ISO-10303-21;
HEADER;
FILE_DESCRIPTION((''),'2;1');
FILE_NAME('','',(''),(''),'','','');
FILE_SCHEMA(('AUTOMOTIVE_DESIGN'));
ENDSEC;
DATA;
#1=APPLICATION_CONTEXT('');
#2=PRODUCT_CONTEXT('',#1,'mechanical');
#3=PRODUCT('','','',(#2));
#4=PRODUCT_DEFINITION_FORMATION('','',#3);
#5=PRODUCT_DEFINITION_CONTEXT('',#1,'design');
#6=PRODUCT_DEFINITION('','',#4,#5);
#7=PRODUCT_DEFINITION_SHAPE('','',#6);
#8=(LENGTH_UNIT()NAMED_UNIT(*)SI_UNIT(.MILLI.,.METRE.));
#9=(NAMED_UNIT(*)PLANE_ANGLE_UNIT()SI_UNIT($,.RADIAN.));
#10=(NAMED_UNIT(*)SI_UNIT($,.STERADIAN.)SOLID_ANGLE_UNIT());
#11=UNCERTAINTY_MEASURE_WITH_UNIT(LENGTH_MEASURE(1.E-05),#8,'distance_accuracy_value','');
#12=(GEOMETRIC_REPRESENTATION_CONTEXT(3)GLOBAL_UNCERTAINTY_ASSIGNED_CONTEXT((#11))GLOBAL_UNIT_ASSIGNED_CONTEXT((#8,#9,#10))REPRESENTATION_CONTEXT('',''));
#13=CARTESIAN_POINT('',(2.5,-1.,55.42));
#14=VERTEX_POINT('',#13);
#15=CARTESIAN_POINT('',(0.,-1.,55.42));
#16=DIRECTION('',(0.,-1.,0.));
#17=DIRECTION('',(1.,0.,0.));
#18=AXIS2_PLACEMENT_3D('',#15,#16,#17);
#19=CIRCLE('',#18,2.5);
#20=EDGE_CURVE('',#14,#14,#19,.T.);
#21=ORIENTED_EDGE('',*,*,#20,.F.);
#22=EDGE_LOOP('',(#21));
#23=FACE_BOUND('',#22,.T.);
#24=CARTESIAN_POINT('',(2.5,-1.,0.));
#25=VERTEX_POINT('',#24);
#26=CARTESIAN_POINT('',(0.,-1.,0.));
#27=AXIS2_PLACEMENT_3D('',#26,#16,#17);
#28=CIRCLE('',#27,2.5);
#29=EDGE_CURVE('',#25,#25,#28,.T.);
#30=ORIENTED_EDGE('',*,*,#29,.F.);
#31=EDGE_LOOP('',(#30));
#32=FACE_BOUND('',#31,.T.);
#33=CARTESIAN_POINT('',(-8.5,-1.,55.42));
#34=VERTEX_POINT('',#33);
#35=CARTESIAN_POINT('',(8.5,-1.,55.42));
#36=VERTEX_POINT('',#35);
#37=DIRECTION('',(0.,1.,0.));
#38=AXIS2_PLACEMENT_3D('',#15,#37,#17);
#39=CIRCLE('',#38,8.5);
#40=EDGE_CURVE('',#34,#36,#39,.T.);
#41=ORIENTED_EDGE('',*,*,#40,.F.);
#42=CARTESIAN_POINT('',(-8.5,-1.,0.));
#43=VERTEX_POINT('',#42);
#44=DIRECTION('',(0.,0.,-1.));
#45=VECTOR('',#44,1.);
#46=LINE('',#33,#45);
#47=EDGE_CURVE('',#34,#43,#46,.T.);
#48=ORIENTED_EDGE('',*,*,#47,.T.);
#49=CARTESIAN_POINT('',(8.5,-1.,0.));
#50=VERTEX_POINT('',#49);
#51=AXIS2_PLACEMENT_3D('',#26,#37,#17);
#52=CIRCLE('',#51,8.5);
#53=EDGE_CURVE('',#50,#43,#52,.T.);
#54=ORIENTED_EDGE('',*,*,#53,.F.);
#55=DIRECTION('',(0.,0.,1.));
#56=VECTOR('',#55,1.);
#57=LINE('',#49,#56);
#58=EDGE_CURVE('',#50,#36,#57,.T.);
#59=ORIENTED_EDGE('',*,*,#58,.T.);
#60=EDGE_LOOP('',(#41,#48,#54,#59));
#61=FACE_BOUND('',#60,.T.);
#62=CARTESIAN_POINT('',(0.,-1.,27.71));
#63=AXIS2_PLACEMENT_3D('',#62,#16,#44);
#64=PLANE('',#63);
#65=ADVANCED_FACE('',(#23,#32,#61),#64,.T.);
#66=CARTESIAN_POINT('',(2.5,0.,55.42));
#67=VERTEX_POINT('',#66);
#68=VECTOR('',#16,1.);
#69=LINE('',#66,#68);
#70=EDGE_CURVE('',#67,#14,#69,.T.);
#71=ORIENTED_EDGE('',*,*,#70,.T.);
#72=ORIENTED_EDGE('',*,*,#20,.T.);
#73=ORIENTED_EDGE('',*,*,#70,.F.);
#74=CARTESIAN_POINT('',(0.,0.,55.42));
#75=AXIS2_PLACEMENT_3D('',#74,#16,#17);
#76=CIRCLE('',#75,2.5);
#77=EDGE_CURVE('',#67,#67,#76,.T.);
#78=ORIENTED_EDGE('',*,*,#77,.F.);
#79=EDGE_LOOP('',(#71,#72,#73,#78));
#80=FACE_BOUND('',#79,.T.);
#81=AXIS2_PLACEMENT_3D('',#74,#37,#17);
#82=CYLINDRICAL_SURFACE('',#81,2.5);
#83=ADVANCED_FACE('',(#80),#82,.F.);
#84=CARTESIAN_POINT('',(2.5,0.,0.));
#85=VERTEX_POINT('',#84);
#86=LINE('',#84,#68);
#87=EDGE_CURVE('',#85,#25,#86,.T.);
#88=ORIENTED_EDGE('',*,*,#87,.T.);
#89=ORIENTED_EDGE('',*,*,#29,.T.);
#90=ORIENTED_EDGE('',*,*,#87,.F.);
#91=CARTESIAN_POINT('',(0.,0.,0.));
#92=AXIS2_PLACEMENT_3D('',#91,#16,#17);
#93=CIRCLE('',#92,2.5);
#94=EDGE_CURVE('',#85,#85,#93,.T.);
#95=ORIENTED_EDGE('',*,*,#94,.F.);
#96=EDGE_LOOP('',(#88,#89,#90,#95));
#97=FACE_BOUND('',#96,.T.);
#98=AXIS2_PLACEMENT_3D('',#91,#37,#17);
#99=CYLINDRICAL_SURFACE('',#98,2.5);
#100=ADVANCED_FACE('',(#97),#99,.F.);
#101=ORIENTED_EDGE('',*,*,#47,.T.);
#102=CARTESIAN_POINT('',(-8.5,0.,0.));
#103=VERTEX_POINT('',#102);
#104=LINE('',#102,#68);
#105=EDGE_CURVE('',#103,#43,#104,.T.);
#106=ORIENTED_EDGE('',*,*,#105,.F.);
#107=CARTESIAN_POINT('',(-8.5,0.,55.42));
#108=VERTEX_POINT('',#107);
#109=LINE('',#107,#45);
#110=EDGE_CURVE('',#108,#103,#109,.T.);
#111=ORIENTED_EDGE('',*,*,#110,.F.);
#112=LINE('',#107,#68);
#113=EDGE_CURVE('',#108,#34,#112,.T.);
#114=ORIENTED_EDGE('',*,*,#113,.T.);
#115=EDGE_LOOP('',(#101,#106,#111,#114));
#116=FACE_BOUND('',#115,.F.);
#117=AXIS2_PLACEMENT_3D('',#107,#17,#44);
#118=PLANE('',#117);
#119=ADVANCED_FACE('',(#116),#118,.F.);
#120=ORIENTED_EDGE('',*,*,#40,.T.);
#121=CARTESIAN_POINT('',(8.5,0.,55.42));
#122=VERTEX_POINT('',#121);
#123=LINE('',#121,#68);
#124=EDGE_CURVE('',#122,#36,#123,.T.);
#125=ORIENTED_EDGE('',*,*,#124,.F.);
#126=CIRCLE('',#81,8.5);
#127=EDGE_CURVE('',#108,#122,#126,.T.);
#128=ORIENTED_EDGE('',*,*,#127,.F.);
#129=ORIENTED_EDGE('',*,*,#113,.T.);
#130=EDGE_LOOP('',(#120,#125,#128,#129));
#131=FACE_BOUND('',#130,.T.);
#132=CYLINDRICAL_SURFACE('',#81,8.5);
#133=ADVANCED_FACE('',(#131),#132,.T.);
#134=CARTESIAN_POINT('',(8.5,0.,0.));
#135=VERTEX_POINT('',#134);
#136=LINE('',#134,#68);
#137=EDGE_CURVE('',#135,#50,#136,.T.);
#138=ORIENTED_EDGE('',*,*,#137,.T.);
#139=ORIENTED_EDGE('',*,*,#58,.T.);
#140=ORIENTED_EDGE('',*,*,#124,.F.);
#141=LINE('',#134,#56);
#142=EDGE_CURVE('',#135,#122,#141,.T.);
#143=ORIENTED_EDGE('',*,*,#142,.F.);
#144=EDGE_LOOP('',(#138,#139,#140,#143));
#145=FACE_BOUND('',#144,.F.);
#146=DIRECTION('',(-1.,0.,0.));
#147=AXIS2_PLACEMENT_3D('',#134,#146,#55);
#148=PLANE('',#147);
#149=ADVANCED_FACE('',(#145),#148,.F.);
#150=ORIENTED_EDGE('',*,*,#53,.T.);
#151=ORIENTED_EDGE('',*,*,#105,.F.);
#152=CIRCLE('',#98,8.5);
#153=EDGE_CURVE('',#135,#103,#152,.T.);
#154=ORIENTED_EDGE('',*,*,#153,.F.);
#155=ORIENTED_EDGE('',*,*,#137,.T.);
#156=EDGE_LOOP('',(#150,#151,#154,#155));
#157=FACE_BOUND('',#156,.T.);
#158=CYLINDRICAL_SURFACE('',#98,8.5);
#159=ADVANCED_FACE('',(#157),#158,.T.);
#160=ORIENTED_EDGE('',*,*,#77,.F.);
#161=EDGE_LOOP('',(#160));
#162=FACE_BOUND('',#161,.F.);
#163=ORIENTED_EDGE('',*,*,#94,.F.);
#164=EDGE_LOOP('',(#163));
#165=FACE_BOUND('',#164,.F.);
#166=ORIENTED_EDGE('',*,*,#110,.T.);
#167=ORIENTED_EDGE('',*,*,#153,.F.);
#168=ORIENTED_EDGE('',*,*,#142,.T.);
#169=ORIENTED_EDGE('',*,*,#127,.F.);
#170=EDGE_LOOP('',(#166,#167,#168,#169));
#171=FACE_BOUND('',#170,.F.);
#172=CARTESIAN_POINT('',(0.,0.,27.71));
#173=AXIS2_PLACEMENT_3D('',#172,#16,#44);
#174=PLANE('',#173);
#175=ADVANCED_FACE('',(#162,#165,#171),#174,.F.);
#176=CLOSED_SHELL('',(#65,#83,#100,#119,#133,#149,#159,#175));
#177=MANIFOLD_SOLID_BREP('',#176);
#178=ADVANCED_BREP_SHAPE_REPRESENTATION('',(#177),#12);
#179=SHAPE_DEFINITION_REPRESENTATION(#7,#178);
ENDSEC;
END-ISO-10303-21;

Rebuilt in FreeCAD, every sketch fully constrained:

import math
import FreeCAD as App
import Part
import Sketcher
from FreeCAD import Vector

doc = App.newDocument("Part")
body = doc.addObject("PartDesign::Body", "Body")

# Sketch on XZ plane
sketch1 = body.newObject("Sketcher::SketchObject", "Sketch")
sketch1.AttachmentSupport = (doc.getObject("XZ_Plane"), [""])
sketch1.MapMode = "FlatFace"
sketch1.addGeometry(Part.ArcOfCircle(Part.Circle(Vector(0, 0, 0), Vector(0, 0, 1), 8.5), math.radians(180), math.radians(360)), False)
sketch1.addGeometry(Part.LineSegment(Vector(8.5, 0, 0), Vector(8.5, 55.4, 0)), False)
sketch1.addGeometry(Part.ArcOfCircle(Part.Circle(Vector(0, 55.4, 0), Vector(0, 0, 1), 8.5), math.radians(0), math.radians(180)), False)
sketch1.addGeometry(Part.LineSegment(Vector(-8.5, 55.4, 0), Vector(-8.5, 0, 0)), False)
sketch1.addGeometry(Part.Circle(Vector(0, 0, 0), Vector(0, 0, 1), 2.5), False)
sketch1.addGeometry(Part.Circle(Vector(0, 55.4, 0), Vector(0, 0, 1), 2.5), False)
sketch1.addConstraint(Sketcher.Constraint("Tangent", 0, 2, 1, 1))
sketch1.addConstraint(Sketcher.Constraint("Tangent", 1, 2, 2, 1))
sketch1.addConstraint(Sketcher.Constraint("Tangent", 2, 2, 3, 1))
sketch1.addConstraint(Sketcher.Constraint("Tangent", 3, 2, 0, 1))
sketch1.addConstraint(Sketcher.Constraint("Vertical", 1))
sketch1.addConstraint(Sketcher.Constraint("Vertical", 3))
sketch1.addConstraint(Sketcher.Constraint("Coincident", 0, 3, -1, 1))
sketch1.addConstraint(Sketcher.Constraint("Coincident", 4, 3, -1, 1))
sketch1.addConstraint(Sketcher.Constraint("Coincident", 5, 3, 2, 3))
sketch1.addConstraint(Sketcher.Constraint("Equal", 4, 5))
sketch1.addConstraint(Sketcher.Constraint("Diameter", 4, 5.0))
sketch1.addConstraint(Sketcher.Constraint("Radius", 0, 8.5))
sketch1.addConstraint(Sketcher.Constraint("DistanceY", 1, 1, 1, 2, 55.42))
pad1 = body.newObject("PartDesign::Pad", "Pad")
pad1.Profile = sketch1
pad1.Length = 1

doc.recompute()
